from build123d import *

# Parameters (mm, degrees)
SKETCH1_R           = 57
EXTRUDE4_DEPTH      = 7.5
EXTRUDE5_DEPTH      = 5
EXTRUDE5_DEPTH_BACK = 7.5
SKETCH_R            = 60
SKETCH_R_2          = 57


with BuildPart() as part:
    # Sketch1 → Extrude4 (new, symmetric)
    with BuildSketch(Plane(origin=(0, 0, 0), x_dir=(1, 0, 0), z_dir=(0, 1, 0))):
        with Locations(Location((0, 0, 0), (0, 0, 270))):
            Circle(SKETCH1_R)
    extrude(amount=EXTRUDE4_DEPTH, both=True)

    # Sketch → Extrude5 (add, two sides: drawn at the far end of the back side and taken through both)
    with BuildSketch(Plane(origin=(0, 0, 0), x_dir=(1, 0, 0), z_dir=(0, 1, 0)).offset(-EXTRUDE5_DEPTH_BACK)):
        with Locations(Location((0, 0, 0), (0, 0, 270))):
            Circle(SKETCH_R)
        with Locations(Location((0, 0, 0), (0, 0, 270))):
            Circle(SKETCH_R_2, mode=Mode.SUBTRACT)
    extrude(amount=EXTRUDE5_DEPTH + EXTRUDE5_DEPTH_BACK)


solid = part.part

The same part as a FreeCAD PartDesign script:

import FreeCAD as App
import Part
import Sketcher
from FreeCAD import Vector

doc = App.newDocument("Part")
body = doc.addObject("PartDesign::Body", "Body")

# Sketch on XZ plane
sketch1 = body.newObject("Sketcher::SketchObject", "Sketch")
sketch1.AttachmentSupport = (doc.getObject("XZ_Plane"), [""])
sketch1.MapMode = "FlatFace"
sketch1.addGeometry(Part.Circle(Vector(0, 0, 0), Vector(0, 0, 1), 57), False)
sketch1.addConstraint(Sketcher.Constraint("Coincident", 0, 3, -1, 1))
sketch1.addConstraint(Sketcher.Constraint("Diameter", 0, 114.0))
pad1 = body.newObject("PartDesign::Pad", "Pad")
pad1.Profile = sketch1
pad1.Length = 15
pad1.Midplane = True

# Sketch on XZ plane
sketch2 = body.newObject("Sketcher::SketchObject", "Sketch001")
sketch2.AttachmentSupport = (doc.getObject("XZ_Plane"), [""])
sketch2.MapMode = "FlatFace"
sketch2.addGeometry(Part.Circle(Vector(0, 0, 0), Vector(0, 0, 1), 60), False)
sketch2.addGeometry(Part.Circle(Vector(0, 0, 0), Vector(0, 0, 1), 57), False)
sketch2.addConstraint(Sketcher.Constraint("Coincident", 0, 3, -1, 1))
sketch2.addConstraint(Sketcher.Constraint("Coincident", 1, 3, -1, 1))
sketch2.addConstraint(Sketcher.Constraint("Diameter", 0, 120.0))
sketch2.addConstraint(Sketcher.Constraint("Diameter", 1, 114.0))
pad2 = body.newObject("PartDesign::Pad", "Pad001")
pad2.Profile = sketch2
pad2.Type = "TwoLengths"
pad2.Length = 5
pad2.Length2 = 7.5
pad2.Reversed = True

doc.recompute()
